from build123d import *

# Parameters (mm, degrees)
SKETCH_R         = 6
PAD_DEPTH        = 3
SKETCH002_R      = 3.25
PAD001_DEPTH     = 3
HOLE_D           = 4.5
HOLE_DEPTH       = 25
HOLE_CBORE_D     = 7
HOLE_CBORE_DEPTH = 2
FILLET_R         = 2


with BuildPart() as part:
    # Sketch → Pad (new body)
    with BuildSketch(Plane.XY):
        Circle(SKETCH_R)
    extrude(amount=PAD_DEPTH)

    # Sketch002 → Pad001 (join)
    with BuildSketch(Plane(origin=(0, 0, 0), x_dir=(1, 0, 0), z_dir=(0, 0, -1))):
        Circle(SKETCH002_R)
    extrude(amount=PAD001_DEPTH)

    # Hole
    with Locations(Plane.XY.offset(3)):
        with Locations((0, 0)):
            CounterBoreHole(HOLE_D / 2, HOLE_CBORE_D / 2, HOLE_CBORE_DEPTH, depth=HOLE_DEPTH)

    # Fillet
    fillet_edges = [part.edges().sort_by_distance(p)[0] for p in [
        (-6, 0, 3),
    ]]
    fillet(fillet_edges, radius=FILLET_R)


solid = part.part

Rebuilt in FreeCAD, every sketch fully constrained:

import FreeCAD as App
import Part
import Sketcher

V = App.Vector


def edges_at(feature, points):
    """Names of the edges that pass closest to the given points."""
    edges = feature.Shape.Edges
    near = lambda p: min(range(len(edges)), key=lambda i: edges[i].distToShape(Part.Vertex(*p))[0])
    return sorted({f"Edge{near(p) + 1}" for p in points})

doc = App.newDocument("Part")
body = doc.addObject("PartDesign::Body", "Body")

# Sketch on XY plane
sketch1 = body.newObject("Sketcher::SketchObject", "Sketch")
sketch1.AttachmentSupport = (doc.getObject("XY_Plane"), [""])
sketch1.MapMode = "FlatFace"
sketch1.addGeometry(Part.Circle(V(0, 0, 0), V(0, 0, 1), 6), False)
sketch1.addConstraint([
    Sketcher.Constraint("Coincident", 0, 3, -1, 1),
    Sketcher.Constraint("Diameter", 0, 12.0),
])
pad1 = body.newObject("PartDesign::Pad", "Pad")
pad1.Profile = sketch1
pad1.Length = 3

# Sketch on XY plane
sketch2 = body.newObject("Sketcher::SketchObject", "Sketch001")
sketch2.AttachmentSupport = (doc.getObject("XY_Plane"), [""])
sketch2.MapMode = "FlatFace"
sketch2.addGeometry(Part.Circle(V(0, 0, 0), V(0, 0, 1), 3.2), False)
sketch2.addConstraint([
    Sketcher.Constraint("Coincident", 0, 3, -1, 1),
    Sketcher.Constraint("Diameter", 0, 6.5),
])
pad2 = body.newObject("PartDesign::Pad", "Pad001")
pad2.Profile = sketch2
pad2.Length = 3
pad2.Reversed = True

# Sketch on XY plane
sketch3 = body.newObject("Sketcher::SketchObject", "Sketch002")
sketch3.AttachmentSupport = (doc.getObject("XY_Plane"), [""])
sketch3.MapMode = "FlatFace"
sketch3.AttachmentOffset = App.Placement(V(0, 0, 3), App.Rotation())
sketch3.addGeometry(Part.Circle(V(0, 0, 0), V(0, 0, 1), 2.2), False)
sketch3.addConstraint([
    Sketcher.Constraint("Coincident", 0, 3, -1, 1),
    Sketcher.Constraint("Diameter", 0, 4.5),
])
doc.recompute()
hole = body.newObject("PartDesign::Hole", "Hole")
hole.Profile = sketch3
hole.ThreadType = "None"
hole.Diameter = 4.5
hole.DepthType = "Dimension"
hole.Depth = 25
hole.DrillPoint = "Flat"
hole.HoleCutType = "Counterbore"
hole.HoleCutDiameter = 7
hole.HoleCutDepth = 2
doc.recompute()

fillet = body.newObject("PartDesign::Fillet", "Fillet")
fillet.Base = (hole, edges_at(hole, [(-6, 0, 3)]))
fillet.Radius = 2

doc.recompute()
